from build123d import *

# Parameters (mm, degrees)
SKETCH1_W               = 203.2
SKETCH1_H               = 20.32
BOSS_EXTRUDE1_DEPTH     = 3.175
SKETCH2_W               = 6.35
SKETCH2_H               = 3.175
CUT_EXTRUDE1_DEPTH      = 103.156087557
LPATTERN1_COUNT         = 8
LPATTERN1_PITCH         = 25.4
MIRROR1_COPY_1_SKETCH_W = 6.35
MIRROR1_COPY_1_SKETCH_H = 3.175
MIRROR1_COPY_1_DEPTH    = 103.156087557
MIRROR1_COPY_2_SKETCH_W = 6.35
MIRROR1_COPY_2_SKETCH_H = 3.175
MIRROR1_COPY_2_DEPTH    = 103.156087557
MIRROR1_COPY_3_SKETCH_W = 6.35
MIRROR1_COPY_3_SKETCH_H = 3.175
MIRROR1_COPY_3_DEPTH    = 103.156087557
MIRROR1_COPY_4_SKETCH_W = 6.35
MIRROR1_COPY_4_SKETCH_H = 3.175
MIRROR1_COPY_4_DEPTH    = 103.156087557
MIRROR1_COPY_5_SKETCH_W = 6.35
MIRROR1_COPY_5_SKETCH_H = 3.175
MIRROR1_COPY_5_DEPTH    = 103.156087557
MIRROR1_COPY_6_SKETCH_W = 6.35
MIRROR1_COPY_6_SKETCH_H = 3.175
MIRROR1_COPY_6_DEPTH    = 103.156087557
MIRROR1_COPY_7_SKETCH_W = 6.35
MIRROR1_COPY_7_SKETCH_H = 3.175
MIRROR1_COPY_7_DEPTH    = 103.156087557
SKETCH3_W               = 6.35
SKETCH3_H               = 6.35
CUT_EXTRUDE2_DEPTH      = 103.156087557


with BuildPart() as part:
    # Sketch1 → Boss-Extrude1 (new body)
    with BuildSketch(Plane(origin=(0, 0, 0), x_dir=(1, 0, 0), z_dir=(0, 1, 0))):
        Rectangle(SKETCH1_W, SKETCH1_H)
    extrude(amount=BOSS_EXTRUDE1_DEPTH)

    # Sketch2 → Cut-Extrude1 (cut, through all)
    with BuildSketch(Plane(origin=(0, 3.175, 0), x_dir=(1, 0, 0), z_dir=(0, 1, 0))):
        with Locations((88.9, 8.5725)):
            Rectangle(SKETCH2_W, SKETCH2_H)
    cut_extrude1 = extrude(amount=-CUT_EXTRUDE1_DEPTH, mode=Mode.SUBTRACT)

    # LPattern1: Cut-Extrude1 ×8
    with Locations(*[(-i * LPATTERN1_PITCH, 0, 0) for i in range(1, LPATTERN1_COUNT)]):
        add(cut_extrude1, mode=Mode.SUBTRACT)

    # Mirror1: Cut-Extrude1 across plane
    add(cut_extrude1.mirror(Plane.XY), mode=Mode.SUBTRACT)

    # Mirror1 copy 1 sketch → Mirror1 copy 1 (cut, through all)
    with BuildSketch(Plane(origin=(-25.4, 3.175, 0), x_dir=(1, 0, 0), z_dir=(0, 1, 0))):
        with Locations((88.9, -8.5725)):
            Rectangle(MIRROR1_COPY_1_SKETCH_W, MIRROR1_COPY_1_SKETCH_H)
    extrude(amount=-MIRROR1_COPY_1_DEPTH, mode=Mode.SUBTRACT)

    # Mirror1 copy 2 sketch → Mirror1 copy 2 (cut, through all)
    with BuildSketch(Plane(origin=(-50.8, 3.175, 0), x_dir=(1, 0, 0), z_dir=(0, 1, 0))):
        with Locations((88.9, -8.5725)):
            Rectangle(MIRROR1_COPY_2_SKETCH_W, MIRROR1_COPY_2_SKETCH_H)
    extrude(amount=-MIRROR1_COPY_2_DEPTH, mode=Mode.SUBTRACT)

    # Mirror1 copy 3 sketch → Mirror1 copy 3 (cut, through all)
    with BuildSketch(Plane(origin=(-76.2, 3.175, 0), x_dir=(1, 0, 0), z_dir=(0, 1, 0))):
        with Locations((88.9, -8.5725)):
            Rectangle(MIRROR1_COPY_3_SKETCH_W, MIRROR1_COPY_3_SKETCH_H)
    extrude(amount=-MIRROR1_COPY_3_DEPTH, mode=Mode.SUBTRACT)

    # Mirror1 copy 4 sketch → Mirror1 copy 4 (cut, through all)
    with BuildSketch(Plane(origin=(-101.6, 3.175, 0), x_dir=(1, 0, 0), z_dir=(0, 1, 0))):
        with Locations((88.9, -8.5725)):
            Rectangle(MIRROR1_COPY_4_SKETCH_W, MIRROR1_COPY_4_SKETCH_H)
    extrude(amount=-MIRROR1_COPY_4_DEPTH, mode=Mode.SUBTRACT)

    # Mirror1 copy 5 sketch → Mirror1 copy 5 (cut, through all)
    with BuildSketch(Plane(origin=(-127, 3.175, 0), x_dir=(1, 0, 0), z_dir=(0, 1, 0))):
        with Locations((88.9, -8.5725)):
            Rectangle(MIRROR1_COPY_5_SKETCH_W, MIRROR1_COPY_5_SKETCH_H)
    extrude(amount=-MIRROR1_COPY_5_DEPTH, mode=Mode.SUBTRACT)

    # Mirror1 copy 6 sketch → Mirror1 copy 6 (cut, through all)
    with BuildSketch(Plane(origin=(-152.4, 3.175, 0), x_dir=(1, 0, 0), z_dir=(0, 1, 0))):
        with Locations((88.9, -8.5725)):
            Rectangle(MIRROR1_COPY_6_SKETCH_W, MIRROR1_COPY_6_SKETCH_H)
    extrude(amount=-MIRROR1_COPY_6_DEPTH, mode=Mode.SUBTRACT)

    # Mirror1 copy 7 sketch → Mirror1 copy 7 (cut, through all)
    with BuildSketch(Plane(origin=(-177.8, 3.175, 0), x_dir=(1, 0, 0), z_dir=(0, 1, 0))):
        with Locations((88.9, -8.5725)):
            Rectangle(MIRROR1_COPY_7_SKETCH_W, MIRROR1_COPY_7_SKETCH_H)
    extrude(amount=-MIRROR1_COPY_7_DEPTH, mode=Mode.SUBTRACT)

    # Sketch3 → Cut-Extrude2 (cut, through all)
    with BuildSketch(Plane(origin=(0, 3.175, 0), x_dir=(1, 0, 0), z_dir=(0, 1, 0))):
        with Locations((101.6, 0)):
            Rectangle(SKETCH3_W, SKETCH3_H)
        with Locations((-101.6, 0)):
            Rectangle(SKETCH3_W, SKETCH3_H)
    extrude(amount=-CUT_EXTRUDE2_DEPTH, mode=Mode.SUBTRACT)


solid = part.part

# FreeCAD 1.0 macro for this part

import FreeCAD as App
import Part
import Sketcher
from FreeCAD import Vector
Q = App.Units.Quantity

doc = App.newDocument("Part")
body = doc.addObject("PartDesign::Body", "Body")

sketch1 = body.newObject("Sketcher::SketchObject", "Sketch")
sketch1.AttachmentSupport = (doc.getObject("XZ_Plane"), [""])
sketch1.MapMode = "FlatFace"
sketch1.addGeometry([
    Part.LineSegment(Vector(-102, -10, 0), Vector(-102, 10, 0)),
    Part.LineSegment(Vector(-102, 10, 0), Vector(102, 10, 0)),
    Part.LineSegment(Vector(102, 10, 0), Vector(102, -10, 0)),
    Part.LineSegment(Vector(102, -10, 0), Vector(-102, -10, 0)),
], False)
sketch1.addConstraint([
    Sketcher.Constraint("Coincident", 0, 2, 1, 1),
    Sketcher.Constraint("Coincident", 1, 2, 2, 1),
    Sketcher.Constraint("Coincident", 2, 2, 3, 1),
    Sketcher.Constraint("Coincident", 3, 2, 0, 1),
    Sketcher.Constraint("Vertical", 0),
    Sketcher.Constraint("Horizontal", 1),
    Sketcher.Constraint("Vertical", 2),
    Sketcher.Constraint("Horizontal", 3),
    Sketcher.Constraint("Symmetric", 0, 2, 2, 2, -1, 1),
    Sketcher.Constraint("DistanceX", 1, 1, 1, 2, Q("8 in")),
    Sketcher.Constraint("DistanceY", 0, 1, 0, 2, Q("0.8 in")),
])
pad1 = body.newObject("PartDesign::Pad", "Pad")
pad1.Profile = sketch1
pad1.Length = Q("0.125 in")
pad1.Reversed = True

sketch2 = body.newObject("Sketcher::SketchObject", "Sketch001")
sketch2.AttachmentSupport = (doc.getObject("XZ_Plane"), [""])
sketch2.MapMode = "FlatFace"
sketch2.AttachmentOffset = App.Placement(Vector(0, 0, -0.125 * 25.4), App.Rotation())
sketch2.addGeometry([
    Part.LineSegment(Vector(85.7, -10.2, 0), Vector(85.7, -7, 0)),
    Part.LineSegment(Vector(85.7, -7, 0), Vector(92.1, -7, 0)),
    Part.LineSegment(Vector(92.1, -7, 0), Vector(92.1, -10.2, 0)),
    Part.LineSegment(Vector(92.1, -10.2, 0), Vector(85.7, -10.2, 0)),
], False)
sketch2.addConstraint([
    Sketcher.Constraint("Coincident", 0, 2, 1, 1),
    Sketcher.Constraint("Coincident", 1, 2, 2, 1),
    Sketcher.Constraint("Coincident", 2, 2, 3, 1),
    Sketcher.Constraint("Coincident", 3, 2, 0, 1),
    Sketcher.Constraint("Vertical", 0),
    Sketcher.Constraint("Horizontal", 1),
    Sketcher.Constraint("Vertical", 2),
    Sketcher.Constraint("Horizontal", 3),
    Sketcher.Constraint("DistanceX", 1, 1, 1, 2, Q("0.25 in")),
    Sketcher.Constraint("DistanceY", 2, 2, -1, 1, Q("0.4 in")),
    Sketcher.Constraint("DistanceY", 0, 1, 0, 2, Q("0.125 in")),
    Sketcher.Constraint("DistanceX", -1, 1, 0, 2, Q("3.375 in")),
])
pocket1 = body.newObject("PartDesign::Pocket", "Pocket")
pocket1.Profile = sketch2
pocket1.Type = "ThroughAll"
pocket1.Reversed = True
doc.recompute()

linearpattern = body.newObject("PartDesign::LinearPattern", "LinearPattern")
linearpattern.Originals = [pocket1]
linearpattern.Direction = (doc.getObject("X_Axis"), [""])
linearpattern.Mode = "offset"
linearpattern.Offset = Q("1 in")
linearpattern.Occurrences = 8
linearpattern.Reversed = True
body.Tip = linearpattern
doc.recompute()

mirrored = body.newObject("PartDesign::Mirrored", "Mirrored")
mirrored.Originals = [pocket1]
mirrored.MirrorPlane = (doc.getObject("XY_Plane"), [""])
body.Tip = mirrored

sketch3 = body.newObject("Sketcher::SketchObject", "Sketch002")
sketch3.AttachmentSupport = (doc.getObject("XZ_Plane"), [""])
sketch3.MapMode = "FlatFace"
sketch3.AttachmentOffset = App.Placement(Vector(0, 0, -0.125 * 25.4), App.Rotation())
sketch3.addGeometry([
    Part.LineSegment(Vector(60.3, 7, 0), Vector(60.3, 10.2, 0)),
    Part.LineSegment(Vector(60.3, 10.2, 0), Vector(66.7, 10.2, 0)),
    Part.LineSegment(Vector(66.7, 10.2, 0), Vector(66.7, 7, 0)),
    Part.LineSegment(Vector(66.7, 7, 0), Vector(60.3, 7, 0)),
], False)
sketch3.addConstraint([
    Sketcher.Constraint("Coincident", 0, 2, 1, 1),
    Sketcher.Constraint("Coincident", 1, 2, 2, 1),
    Sketcher.Constraint("Coincident", 2, 2, 3, 1),
    Sketcher.Constraint("Coincident", 3, 2, 0, 1),
    Sketcher.Constraint("Vertical", 0),
    Sketcher.Constraint("Horizontal", 1),
    Sketcher.Constraint("Vertical", 2),
    Sketcher.Constraint("Horizontal", 3),
    Sketcher.Constraint("DistanceX", 1, 1, 1, 2, Q("0.25 in")),
    Sketcher.Constraint("DistanceY", -1, 1, 0, 2, Q("0.4 in")),
    Sketcher.Constraint("DistanceY", 0, 1, 0, 2, Q("0.125 in")),
    Sketcher.Constraint("DistanceX", -1, 1, 0, 2, Q("2.375 in")),
])
pocket2 = body.newObject("PartDesign::Pocket", "Pocket001")
pocket2.Profile = sketch3
pocket2.Type = "ThroughAll"
pocket2.Reversed = True

sketch4 = body.newObject("Sketcher::SketchObject", "Sketch003")
sketch4.AttachmentSupport = (doc.getObject("XZ_Plane"), [""])
sketch4.MapMode = "FlatFace"
sketch4.AttachmentOffset = App.Placement(Vector(0, 0, -0.125 * 25.4), App.Rotation())
sketch4.addGeometry([
    Part.LineSegment(Vector(34.9, 7, 0), Vector(34.9, 10.2, 0)),
    Part.LineSegment(Vector(34.9, 10.2, 0), Vector(41.3, 10.2, 0)),
    Part.LineSegment(Vector(41.3, 10.2, 0), Vector(41.3, 7, 0)),
    Part.LineSegment(Vector(41.3, 7, 0), Vector(34.9, 7, 0)),
], False)
sketch4.addConstraint([
    Sketcher.Constraint("Coincident", 0, 2, 1, 1),
    Sketcher.Constraint("Coincident", 1, 2, 2, 1),
    Sketcher.Constraint("Coincident", 2, 2, 3, 1),
    Sketcher.Constraint("Coincident", 3, 2, 0, 1),
    Sketcher.Constraint("Vertical", 0),
    Sketcher.Constraint("Horizontal", 1),
    Sketcher.Constraint("Vertical", 2),
    Sketcher.Constraint("Horizontal", 3),
    Sketcher.Constraint("DistanceX", 1, 1, 1, 2, Q("0.25 in")),
    Sketcher.Constraint("DistanceY", -1, 1, 0, 2, Q("0.4 in")),
    Sketcher.Constraint("DistanceY", 0, 1, 0, 2, Q("0.125 in")),
    Sketcher.Constraint("DistanceX", -1, 1, 0, 2, Q("1.375 in")),
])
pocket3 = body.newObject("PartDesign::Pocket", "Pocket002")
pocket3.Profile = sketch4
pocket3.Type = "ThroughAll"
pocket3.Reversed = True

sketch5 = body.newObject("Sketcher::SketchObject", "Sketch004")
sketch5.AttachmentSupport = (doc.getObject("XZ_Plane"), [""])
sketch5.MapMode = "FlatFace"
sketch5.AttachmentOffset = App.Placement(Vector(0, 0, -0.125 * 25.4), App.Rotation())
sketch5.addGeometry([
    Part.LineSegment(Vector(9.5, 7, 0), Vector(9.5, 10.2, 0)),
    Part.LineSegment(Vector(9.5, 10.2, 0), Vector(15.9, 10.2, 0)),
    Part.LineSegment(Vector(15.9, 10.2, 0), Vector(15.9, 7, 0)),
    Part.LineSegment(Vector(15.9, 7, 0), Vector(9.5, 7, 0)),
], False)
sketch5.addConstraint([
    Sketcher.Constraint("Coincident", 0, 2, 1, 1),
    Sketcher.Constraint("Coincident", 1, 2, 2, 1),
    Sketcher.Constraint("Coincident", 2, 2, 3, 1),
    Sketcher.Constraint("Coincident", 3, 2, 0, 1),
    Sketcher.Constraint("Vertical", 0),
    Sketcher.Constraint("Horizontal", 1),
    Sketcher.Constraint("Vertical", 2),
    Sketcher.Constraint("Horizontal", 3),
    Sketcher.Constraint("DistanceX", 1, 1, 1, 2, Q("0.25 in")),
    Sketcher.Constraint("DistanceY", -1, 1, 0, 2, Q("0.4 in")),
    Sketcher.Constraint("DistanceY", 0, 1, 0, 2, Q("0.125 in")),
    Sketcher.Constraint("DistanceX", -1, 1, 0, 2, Q("0.375 in")),
])
pocket4 = body.newObject("PartDesign::Pocket", "Pocket003")
pocket4.Profile = sketch5
pocket4.Type = "ThroughAll"
pocket4.Reversed = True

sketch6 = body.newObject("Sketcher::SketchObject", "Sketch005")
sketch6.AttachmentSupport = (doc.getObject("XZ_Plane"), [""])
sketch6.MapMode = "FlatFace"
sketch6.AttachmentOffset = App.Placement(Vector(0, 0, -0.125 * 25.4), App.Rotation())
sketch6.addGeometry([
    Part.LineSegment(Vector(-15.9, 7, 0), Vector(-15.9, 10.2, 0)),
    Part.LineSegment(Vector(-15.9, 10.2, 0), Vector(-9.5, 10.2, 0)),
    Part.LineSegment(Vector(-9.5, 10.2, 0), Vector(-9.5, 7, 0)),
    Part.LineSegment(Vector(-9.5, 7, 0), Vector(-15.9, 7, 0)),
], False)
sketch6.addConstraint([
    Sketcher.Constraint("Coincident", 0, 2, 1, 1),
    Sketcher.Constraint("Coincident", 1, 2, 2, 1),
    Sketcher.Constraint("Coincident", 2, 2, 3, 1),
    Sketcher.Constraint("Coincident", 3, 2, 0, 1),
    Sketcher.Constraint("Vertical", 0),
    Sketcher.Constraint("Horizontal", 1),
    Sketcher.Constraint("Vertical", 2),
    Sketcher.Constraint("Horizontal", 3),
    Sketcher.Constraint("DistanceX", 1, 1, 1, 2, Q("0.25 in")),
    Sketcher.Constraint("DistanceY", -1, 1, 0, 2, Q("0.4 in")),
    Sketcher.Constraint("DistanceY", 0, 1, 0, 2, Q("0.125 in")),
    Sketcher.Constraint("DistanceX", 0, 2, -1, 1, Q("0.625 in")),
])
pocket5 = body.newObject("PartDesign::Pocket", "Pocket004")
pocket5.Profile = sketch6
pocket5.Type = "ThroughAll"
pocket5.Reversed = True

sketch7 = body.newObject("Sketcher::SketchObject", "Sketch006")
sketch7.AttachmentSupport = (doc.getObject("XZ_Plane"), [""])
sketch7.MapMode = "FlatFace"
sketch7.AttachmentOffset = App.Placement(Vector(0, 0, -0.125 * 25.4), App.Rotation())
sketch7.addGeometry([
    Part.LineSegment(Vector(-41.3, 7, 0), Vector(-41.3, 10.2, 0)),
    Part.LineSegment(Vector(-41.3, 10.2, 0), Vector(-34.9, 10.2, 0)),
    Part.LineSegment(Vector(-34.9, 10.2, 0), Vector(-34.9, 7, 0)),
    Part.LineSegment(Vector(-34.9, 7, 0), Vector(-41.3, 7, 0)),
], False)
sketch7.addConstraint([
    Sketcher.Constraint("Coincident", 0, 2, 1, 1),
    Sketcher.Constraint("Coincident", 1, 2, 2, 1),
    Sketcher.Constraint("Coincident", 2, 2, 3, 1),
    Sketcher.Constraint("Coincident", 3, 2, 0, 1),
    Sketcher.Constraint("Vertical", 0),
    Sketcher.Constraint("Horizontal", 1),
    Sketcher.Constraint("Vertical", 2),
    Sketcher.Constraint("Horizontal", 3),
    Sketcher.Constraint("DistanceX", 1, 1, 1, 2, Q("0.25 in")),
    Sketcher.Constraint("DistanceY", -1, 1, 0, 2, Q("0.4 in")),
    Sketcher.Constraint("DistanceY", 0, 1, 0, 2, Q("0.125 in")),
    Sketcher.Constraint("DistanceX", 0, 2, -1, 1, Q("1.625 in")),
])
pocket6 = body.newObject("PartDesign::Pocket", "Pocket005")
pocket6.Profile = sketch7
pocket6.Type = "ThroughAll"
pocket6.Reversed = True

sketch8 = body.newObject("Sketcher::SketchObject", "Sketch007")
sketch8.AttachmentSupport = (doc.getObject("XZ_Plane"), [""])
sketch8.MapMode = "FlatFace"
sketch8.AttachmentOffset = App.Placement(Vector(0, 0, -0.125 * 25.4), App.Rotation())
sketch8.addGeometry([
    Part.LineSegment(Vector(-66.7, 7, 0), Vector(-66.7, 10.2, 0)),
    Part.LineSegment(Vector(-66.7, 10.2, 0), Vector(-60.3, 10.2, 0)),
    Part.LineSegment(Vector(-60.3, 10.2, 0), Vector(-60.3, 7, 0)),
    Part.LineSegment(Vector(-60.3, 7, 0), Vector(-66.7, 7, 0)),
], False)
sketch8.addConstraint([
    Sketcher.Constraint("Coincident", 0, 2, 1, 1),
    Sketcher.Constraint("Coincident", 1, 2, 2, 1),
    Sketcher.Constraint("Coincident", 2, 2, 3, 1),
    Sketcher.Constraint("Coincident", 3, 2, 0, 1),
    Sketcher.Constraint("Vertical", 0),
    Sketcher.Constraint("Horizontal", 1),
    Sketcher.Constraint("Vertical", 2),
    Sketcher.Constraint("Horizontal", 3),
    Sketcher.Constraint("DistanceX", 1, 1, 1, 2, Q("0.25 in")),
    Sketcher.Constraint("DistanceY", -1, 1, 0, 2, Q("0.4 in")),
    Sketcher.Constraint("DistanceY", 0, 1, 0, 2, Q("0.125 in")),
    Sketcher.Constraint("DistanceX", 0, 2, -1, 1, Q("2.625 in")),
])
pocket7 = body.newObject("PartDesign::Pocket", "Pocket006")
pocket7.Profile = sketch8
pocket7.Type = "ThroughAll"
pocket7.Reversed = True

sketch9 = body.newObject("Sketcher::SketchObject", "Sketch008")
sketch9.AttachmentSupport = (doc.getObject("XZ_Plane"), [""])
sketch9.MapMode = "FlatFace"
sketch9.AttachmentOffset = App.Placement(Vector(0, 0, -0.125 * 25.4), App.Rotation())
sketch9.addGeometry([
    Part.LineSegment(Vector(-92.1, 7, 0), Vector(-92.1, 10.2, 0)),
    Part.LineSegment(Vector(-92.1, 10.2, 0), Vector(-85.7, 10.2, 0)),
    Part.LineSegment(Vector(-85.7, 10.2, 0), Vector(-85.7, 7, 0)),
    Part.LineSegment(Vector(-85.7, 7, 0), Vector(-92.1, 7, 0)),
], False)
sketch9.addConstraint([
    Sketcher.Constraint("Coincident", 0, 2, 1, 1),
    Sketcher.Constraint("Coincident", 1, 2, 2, 1),
    Sketcher.Constraint("Coincident", 2, 2, 3, 1),
    Sketcher.Constraint("Coincident", 3, 2, 0, 1),
    Sketcher.Constraint("Vertical", 0),
    Sketcher.Constraint("Horizontal", 1),
    Sketcher.Constraint("Vertical", 2),
    Sketcher.Constraint("Horizontal", 3),
    Sketcher.Constraint("DistanceX", 1, 1, 1, 2, Q("0.25 in")),
    Sketcher.Constraint("DistanceY", -1, 1, 0, 2, Q("0.4 in")),
    Sketcher.Constraint("DistanceY", 0, 1, 0, 2, Q("0.125 in")),
    Sketcher.Constraint("DistanceX", 0, 2, -1, 1, Q("3.625 in")),
])
pocket8 = body.newObject("PartDesign::Pocket", "Pocket007")
pocket8.Profile = sketch9
pocket8.Type = "ThroughAll"
pocket8.Reversed = True

sketch10 = body.newObject("Sketcher::SketchObject", "Sketch009")
sketch10.AttachmentSupport = (doc.getObject("XZ_Plane"), [""])
sketch10.MapMode = "FlatFace"
sketch10.AttachmentOffset = App.Placement(Vector(0, 0, -0.125 * 25.4), App.Rotation())
sketch10.addGeometry([
    Part.LineSegment(Vector(98, -3, 0), Vector(98, 3, 0)),
    Part.LineSegment(Vector(98, 3, 0), Vector(105, 3, 0)),
    Part.LineSegment(Vector(105, 3, 0), Vector(105, -3, 0)),
    Part.LineSegment(Vector(105, -3, 0), Vector(98, -3, 0)),
    Part.LineSegment(Vector(-105, -3, 0), Vector(-105, 3, 0)),
    Part.LineSegment(Vector(-105, 3, 0), Vector(-98, 3, 0)),
    Part.LineSegment(Vector(-98, 3, 0), Vector(-98, -3, 0)),
    Part.LineSegment(Vector(-98, -3, 0), Vector(-105, -3, 0)),
], False)
sketch10.addConstraint([
    Sketcher.Constraint("Coincident", 0, 2, 1, 1),
    Sketcher.Constraint("Coincident", 1, 2, 2, 1),
    Sketcher.Constraint("Coincident", 2, 2, 3, 1),
    Sketcher.Constraint("Coincident", 3, 2, 0, 1),
    Sketcher.Constraint("Coincident", 4, 2, 5, 1),
    Sketcher.Constraint("Coincident", 5, 2, 6, 1),
    Sketcher.Constraint("Coincident", 6, 2, 7, 1),
    Sketcher.Constraint("Coincident", 7, 2, 4, 1),
    Sketcher.Constraint("Vertical", 0),
    Sketcher.Constraint("Horizontal", 1),
    Sketcher.Constraint("Vertical", 2),
    Sketcher.Constraint("Horizontal", 3),
    Sketcher.Constraint("Vertical", 4),
    Sketcher.Constraint("Horizontal", 5),
    Sketcher.Constraint("Vertical", 6),
    Sketcher.Constraint("Horizontal", 7),
    Sketcher.Constraint("Symmetric", 2, 2, 4, 2, -1, 1),
    Sketcher.Constraint("Symmetric", 0, 2, 6, 2, -1, 1),
    Sketcher.Constraint("Horizontal", 1, 2, 4, 2),
    Sketcher.Constraint("Equal", 7, 0),
    Sketcher.Constraint("DistanceX", 4, 2, 0, 2, Q("8 in")),
    Sketcher.Constraint("DistanceX", 1, 1, 1, 2, Q("0.25 in")),
])
pocket9 = body.newObject("PartDesign::Pocket", "Pocket008")
pocket9.Profile = sketch10
pocket9.Type = "ThroughAll"
pocket9.Reversed = True

doc.recompute()
